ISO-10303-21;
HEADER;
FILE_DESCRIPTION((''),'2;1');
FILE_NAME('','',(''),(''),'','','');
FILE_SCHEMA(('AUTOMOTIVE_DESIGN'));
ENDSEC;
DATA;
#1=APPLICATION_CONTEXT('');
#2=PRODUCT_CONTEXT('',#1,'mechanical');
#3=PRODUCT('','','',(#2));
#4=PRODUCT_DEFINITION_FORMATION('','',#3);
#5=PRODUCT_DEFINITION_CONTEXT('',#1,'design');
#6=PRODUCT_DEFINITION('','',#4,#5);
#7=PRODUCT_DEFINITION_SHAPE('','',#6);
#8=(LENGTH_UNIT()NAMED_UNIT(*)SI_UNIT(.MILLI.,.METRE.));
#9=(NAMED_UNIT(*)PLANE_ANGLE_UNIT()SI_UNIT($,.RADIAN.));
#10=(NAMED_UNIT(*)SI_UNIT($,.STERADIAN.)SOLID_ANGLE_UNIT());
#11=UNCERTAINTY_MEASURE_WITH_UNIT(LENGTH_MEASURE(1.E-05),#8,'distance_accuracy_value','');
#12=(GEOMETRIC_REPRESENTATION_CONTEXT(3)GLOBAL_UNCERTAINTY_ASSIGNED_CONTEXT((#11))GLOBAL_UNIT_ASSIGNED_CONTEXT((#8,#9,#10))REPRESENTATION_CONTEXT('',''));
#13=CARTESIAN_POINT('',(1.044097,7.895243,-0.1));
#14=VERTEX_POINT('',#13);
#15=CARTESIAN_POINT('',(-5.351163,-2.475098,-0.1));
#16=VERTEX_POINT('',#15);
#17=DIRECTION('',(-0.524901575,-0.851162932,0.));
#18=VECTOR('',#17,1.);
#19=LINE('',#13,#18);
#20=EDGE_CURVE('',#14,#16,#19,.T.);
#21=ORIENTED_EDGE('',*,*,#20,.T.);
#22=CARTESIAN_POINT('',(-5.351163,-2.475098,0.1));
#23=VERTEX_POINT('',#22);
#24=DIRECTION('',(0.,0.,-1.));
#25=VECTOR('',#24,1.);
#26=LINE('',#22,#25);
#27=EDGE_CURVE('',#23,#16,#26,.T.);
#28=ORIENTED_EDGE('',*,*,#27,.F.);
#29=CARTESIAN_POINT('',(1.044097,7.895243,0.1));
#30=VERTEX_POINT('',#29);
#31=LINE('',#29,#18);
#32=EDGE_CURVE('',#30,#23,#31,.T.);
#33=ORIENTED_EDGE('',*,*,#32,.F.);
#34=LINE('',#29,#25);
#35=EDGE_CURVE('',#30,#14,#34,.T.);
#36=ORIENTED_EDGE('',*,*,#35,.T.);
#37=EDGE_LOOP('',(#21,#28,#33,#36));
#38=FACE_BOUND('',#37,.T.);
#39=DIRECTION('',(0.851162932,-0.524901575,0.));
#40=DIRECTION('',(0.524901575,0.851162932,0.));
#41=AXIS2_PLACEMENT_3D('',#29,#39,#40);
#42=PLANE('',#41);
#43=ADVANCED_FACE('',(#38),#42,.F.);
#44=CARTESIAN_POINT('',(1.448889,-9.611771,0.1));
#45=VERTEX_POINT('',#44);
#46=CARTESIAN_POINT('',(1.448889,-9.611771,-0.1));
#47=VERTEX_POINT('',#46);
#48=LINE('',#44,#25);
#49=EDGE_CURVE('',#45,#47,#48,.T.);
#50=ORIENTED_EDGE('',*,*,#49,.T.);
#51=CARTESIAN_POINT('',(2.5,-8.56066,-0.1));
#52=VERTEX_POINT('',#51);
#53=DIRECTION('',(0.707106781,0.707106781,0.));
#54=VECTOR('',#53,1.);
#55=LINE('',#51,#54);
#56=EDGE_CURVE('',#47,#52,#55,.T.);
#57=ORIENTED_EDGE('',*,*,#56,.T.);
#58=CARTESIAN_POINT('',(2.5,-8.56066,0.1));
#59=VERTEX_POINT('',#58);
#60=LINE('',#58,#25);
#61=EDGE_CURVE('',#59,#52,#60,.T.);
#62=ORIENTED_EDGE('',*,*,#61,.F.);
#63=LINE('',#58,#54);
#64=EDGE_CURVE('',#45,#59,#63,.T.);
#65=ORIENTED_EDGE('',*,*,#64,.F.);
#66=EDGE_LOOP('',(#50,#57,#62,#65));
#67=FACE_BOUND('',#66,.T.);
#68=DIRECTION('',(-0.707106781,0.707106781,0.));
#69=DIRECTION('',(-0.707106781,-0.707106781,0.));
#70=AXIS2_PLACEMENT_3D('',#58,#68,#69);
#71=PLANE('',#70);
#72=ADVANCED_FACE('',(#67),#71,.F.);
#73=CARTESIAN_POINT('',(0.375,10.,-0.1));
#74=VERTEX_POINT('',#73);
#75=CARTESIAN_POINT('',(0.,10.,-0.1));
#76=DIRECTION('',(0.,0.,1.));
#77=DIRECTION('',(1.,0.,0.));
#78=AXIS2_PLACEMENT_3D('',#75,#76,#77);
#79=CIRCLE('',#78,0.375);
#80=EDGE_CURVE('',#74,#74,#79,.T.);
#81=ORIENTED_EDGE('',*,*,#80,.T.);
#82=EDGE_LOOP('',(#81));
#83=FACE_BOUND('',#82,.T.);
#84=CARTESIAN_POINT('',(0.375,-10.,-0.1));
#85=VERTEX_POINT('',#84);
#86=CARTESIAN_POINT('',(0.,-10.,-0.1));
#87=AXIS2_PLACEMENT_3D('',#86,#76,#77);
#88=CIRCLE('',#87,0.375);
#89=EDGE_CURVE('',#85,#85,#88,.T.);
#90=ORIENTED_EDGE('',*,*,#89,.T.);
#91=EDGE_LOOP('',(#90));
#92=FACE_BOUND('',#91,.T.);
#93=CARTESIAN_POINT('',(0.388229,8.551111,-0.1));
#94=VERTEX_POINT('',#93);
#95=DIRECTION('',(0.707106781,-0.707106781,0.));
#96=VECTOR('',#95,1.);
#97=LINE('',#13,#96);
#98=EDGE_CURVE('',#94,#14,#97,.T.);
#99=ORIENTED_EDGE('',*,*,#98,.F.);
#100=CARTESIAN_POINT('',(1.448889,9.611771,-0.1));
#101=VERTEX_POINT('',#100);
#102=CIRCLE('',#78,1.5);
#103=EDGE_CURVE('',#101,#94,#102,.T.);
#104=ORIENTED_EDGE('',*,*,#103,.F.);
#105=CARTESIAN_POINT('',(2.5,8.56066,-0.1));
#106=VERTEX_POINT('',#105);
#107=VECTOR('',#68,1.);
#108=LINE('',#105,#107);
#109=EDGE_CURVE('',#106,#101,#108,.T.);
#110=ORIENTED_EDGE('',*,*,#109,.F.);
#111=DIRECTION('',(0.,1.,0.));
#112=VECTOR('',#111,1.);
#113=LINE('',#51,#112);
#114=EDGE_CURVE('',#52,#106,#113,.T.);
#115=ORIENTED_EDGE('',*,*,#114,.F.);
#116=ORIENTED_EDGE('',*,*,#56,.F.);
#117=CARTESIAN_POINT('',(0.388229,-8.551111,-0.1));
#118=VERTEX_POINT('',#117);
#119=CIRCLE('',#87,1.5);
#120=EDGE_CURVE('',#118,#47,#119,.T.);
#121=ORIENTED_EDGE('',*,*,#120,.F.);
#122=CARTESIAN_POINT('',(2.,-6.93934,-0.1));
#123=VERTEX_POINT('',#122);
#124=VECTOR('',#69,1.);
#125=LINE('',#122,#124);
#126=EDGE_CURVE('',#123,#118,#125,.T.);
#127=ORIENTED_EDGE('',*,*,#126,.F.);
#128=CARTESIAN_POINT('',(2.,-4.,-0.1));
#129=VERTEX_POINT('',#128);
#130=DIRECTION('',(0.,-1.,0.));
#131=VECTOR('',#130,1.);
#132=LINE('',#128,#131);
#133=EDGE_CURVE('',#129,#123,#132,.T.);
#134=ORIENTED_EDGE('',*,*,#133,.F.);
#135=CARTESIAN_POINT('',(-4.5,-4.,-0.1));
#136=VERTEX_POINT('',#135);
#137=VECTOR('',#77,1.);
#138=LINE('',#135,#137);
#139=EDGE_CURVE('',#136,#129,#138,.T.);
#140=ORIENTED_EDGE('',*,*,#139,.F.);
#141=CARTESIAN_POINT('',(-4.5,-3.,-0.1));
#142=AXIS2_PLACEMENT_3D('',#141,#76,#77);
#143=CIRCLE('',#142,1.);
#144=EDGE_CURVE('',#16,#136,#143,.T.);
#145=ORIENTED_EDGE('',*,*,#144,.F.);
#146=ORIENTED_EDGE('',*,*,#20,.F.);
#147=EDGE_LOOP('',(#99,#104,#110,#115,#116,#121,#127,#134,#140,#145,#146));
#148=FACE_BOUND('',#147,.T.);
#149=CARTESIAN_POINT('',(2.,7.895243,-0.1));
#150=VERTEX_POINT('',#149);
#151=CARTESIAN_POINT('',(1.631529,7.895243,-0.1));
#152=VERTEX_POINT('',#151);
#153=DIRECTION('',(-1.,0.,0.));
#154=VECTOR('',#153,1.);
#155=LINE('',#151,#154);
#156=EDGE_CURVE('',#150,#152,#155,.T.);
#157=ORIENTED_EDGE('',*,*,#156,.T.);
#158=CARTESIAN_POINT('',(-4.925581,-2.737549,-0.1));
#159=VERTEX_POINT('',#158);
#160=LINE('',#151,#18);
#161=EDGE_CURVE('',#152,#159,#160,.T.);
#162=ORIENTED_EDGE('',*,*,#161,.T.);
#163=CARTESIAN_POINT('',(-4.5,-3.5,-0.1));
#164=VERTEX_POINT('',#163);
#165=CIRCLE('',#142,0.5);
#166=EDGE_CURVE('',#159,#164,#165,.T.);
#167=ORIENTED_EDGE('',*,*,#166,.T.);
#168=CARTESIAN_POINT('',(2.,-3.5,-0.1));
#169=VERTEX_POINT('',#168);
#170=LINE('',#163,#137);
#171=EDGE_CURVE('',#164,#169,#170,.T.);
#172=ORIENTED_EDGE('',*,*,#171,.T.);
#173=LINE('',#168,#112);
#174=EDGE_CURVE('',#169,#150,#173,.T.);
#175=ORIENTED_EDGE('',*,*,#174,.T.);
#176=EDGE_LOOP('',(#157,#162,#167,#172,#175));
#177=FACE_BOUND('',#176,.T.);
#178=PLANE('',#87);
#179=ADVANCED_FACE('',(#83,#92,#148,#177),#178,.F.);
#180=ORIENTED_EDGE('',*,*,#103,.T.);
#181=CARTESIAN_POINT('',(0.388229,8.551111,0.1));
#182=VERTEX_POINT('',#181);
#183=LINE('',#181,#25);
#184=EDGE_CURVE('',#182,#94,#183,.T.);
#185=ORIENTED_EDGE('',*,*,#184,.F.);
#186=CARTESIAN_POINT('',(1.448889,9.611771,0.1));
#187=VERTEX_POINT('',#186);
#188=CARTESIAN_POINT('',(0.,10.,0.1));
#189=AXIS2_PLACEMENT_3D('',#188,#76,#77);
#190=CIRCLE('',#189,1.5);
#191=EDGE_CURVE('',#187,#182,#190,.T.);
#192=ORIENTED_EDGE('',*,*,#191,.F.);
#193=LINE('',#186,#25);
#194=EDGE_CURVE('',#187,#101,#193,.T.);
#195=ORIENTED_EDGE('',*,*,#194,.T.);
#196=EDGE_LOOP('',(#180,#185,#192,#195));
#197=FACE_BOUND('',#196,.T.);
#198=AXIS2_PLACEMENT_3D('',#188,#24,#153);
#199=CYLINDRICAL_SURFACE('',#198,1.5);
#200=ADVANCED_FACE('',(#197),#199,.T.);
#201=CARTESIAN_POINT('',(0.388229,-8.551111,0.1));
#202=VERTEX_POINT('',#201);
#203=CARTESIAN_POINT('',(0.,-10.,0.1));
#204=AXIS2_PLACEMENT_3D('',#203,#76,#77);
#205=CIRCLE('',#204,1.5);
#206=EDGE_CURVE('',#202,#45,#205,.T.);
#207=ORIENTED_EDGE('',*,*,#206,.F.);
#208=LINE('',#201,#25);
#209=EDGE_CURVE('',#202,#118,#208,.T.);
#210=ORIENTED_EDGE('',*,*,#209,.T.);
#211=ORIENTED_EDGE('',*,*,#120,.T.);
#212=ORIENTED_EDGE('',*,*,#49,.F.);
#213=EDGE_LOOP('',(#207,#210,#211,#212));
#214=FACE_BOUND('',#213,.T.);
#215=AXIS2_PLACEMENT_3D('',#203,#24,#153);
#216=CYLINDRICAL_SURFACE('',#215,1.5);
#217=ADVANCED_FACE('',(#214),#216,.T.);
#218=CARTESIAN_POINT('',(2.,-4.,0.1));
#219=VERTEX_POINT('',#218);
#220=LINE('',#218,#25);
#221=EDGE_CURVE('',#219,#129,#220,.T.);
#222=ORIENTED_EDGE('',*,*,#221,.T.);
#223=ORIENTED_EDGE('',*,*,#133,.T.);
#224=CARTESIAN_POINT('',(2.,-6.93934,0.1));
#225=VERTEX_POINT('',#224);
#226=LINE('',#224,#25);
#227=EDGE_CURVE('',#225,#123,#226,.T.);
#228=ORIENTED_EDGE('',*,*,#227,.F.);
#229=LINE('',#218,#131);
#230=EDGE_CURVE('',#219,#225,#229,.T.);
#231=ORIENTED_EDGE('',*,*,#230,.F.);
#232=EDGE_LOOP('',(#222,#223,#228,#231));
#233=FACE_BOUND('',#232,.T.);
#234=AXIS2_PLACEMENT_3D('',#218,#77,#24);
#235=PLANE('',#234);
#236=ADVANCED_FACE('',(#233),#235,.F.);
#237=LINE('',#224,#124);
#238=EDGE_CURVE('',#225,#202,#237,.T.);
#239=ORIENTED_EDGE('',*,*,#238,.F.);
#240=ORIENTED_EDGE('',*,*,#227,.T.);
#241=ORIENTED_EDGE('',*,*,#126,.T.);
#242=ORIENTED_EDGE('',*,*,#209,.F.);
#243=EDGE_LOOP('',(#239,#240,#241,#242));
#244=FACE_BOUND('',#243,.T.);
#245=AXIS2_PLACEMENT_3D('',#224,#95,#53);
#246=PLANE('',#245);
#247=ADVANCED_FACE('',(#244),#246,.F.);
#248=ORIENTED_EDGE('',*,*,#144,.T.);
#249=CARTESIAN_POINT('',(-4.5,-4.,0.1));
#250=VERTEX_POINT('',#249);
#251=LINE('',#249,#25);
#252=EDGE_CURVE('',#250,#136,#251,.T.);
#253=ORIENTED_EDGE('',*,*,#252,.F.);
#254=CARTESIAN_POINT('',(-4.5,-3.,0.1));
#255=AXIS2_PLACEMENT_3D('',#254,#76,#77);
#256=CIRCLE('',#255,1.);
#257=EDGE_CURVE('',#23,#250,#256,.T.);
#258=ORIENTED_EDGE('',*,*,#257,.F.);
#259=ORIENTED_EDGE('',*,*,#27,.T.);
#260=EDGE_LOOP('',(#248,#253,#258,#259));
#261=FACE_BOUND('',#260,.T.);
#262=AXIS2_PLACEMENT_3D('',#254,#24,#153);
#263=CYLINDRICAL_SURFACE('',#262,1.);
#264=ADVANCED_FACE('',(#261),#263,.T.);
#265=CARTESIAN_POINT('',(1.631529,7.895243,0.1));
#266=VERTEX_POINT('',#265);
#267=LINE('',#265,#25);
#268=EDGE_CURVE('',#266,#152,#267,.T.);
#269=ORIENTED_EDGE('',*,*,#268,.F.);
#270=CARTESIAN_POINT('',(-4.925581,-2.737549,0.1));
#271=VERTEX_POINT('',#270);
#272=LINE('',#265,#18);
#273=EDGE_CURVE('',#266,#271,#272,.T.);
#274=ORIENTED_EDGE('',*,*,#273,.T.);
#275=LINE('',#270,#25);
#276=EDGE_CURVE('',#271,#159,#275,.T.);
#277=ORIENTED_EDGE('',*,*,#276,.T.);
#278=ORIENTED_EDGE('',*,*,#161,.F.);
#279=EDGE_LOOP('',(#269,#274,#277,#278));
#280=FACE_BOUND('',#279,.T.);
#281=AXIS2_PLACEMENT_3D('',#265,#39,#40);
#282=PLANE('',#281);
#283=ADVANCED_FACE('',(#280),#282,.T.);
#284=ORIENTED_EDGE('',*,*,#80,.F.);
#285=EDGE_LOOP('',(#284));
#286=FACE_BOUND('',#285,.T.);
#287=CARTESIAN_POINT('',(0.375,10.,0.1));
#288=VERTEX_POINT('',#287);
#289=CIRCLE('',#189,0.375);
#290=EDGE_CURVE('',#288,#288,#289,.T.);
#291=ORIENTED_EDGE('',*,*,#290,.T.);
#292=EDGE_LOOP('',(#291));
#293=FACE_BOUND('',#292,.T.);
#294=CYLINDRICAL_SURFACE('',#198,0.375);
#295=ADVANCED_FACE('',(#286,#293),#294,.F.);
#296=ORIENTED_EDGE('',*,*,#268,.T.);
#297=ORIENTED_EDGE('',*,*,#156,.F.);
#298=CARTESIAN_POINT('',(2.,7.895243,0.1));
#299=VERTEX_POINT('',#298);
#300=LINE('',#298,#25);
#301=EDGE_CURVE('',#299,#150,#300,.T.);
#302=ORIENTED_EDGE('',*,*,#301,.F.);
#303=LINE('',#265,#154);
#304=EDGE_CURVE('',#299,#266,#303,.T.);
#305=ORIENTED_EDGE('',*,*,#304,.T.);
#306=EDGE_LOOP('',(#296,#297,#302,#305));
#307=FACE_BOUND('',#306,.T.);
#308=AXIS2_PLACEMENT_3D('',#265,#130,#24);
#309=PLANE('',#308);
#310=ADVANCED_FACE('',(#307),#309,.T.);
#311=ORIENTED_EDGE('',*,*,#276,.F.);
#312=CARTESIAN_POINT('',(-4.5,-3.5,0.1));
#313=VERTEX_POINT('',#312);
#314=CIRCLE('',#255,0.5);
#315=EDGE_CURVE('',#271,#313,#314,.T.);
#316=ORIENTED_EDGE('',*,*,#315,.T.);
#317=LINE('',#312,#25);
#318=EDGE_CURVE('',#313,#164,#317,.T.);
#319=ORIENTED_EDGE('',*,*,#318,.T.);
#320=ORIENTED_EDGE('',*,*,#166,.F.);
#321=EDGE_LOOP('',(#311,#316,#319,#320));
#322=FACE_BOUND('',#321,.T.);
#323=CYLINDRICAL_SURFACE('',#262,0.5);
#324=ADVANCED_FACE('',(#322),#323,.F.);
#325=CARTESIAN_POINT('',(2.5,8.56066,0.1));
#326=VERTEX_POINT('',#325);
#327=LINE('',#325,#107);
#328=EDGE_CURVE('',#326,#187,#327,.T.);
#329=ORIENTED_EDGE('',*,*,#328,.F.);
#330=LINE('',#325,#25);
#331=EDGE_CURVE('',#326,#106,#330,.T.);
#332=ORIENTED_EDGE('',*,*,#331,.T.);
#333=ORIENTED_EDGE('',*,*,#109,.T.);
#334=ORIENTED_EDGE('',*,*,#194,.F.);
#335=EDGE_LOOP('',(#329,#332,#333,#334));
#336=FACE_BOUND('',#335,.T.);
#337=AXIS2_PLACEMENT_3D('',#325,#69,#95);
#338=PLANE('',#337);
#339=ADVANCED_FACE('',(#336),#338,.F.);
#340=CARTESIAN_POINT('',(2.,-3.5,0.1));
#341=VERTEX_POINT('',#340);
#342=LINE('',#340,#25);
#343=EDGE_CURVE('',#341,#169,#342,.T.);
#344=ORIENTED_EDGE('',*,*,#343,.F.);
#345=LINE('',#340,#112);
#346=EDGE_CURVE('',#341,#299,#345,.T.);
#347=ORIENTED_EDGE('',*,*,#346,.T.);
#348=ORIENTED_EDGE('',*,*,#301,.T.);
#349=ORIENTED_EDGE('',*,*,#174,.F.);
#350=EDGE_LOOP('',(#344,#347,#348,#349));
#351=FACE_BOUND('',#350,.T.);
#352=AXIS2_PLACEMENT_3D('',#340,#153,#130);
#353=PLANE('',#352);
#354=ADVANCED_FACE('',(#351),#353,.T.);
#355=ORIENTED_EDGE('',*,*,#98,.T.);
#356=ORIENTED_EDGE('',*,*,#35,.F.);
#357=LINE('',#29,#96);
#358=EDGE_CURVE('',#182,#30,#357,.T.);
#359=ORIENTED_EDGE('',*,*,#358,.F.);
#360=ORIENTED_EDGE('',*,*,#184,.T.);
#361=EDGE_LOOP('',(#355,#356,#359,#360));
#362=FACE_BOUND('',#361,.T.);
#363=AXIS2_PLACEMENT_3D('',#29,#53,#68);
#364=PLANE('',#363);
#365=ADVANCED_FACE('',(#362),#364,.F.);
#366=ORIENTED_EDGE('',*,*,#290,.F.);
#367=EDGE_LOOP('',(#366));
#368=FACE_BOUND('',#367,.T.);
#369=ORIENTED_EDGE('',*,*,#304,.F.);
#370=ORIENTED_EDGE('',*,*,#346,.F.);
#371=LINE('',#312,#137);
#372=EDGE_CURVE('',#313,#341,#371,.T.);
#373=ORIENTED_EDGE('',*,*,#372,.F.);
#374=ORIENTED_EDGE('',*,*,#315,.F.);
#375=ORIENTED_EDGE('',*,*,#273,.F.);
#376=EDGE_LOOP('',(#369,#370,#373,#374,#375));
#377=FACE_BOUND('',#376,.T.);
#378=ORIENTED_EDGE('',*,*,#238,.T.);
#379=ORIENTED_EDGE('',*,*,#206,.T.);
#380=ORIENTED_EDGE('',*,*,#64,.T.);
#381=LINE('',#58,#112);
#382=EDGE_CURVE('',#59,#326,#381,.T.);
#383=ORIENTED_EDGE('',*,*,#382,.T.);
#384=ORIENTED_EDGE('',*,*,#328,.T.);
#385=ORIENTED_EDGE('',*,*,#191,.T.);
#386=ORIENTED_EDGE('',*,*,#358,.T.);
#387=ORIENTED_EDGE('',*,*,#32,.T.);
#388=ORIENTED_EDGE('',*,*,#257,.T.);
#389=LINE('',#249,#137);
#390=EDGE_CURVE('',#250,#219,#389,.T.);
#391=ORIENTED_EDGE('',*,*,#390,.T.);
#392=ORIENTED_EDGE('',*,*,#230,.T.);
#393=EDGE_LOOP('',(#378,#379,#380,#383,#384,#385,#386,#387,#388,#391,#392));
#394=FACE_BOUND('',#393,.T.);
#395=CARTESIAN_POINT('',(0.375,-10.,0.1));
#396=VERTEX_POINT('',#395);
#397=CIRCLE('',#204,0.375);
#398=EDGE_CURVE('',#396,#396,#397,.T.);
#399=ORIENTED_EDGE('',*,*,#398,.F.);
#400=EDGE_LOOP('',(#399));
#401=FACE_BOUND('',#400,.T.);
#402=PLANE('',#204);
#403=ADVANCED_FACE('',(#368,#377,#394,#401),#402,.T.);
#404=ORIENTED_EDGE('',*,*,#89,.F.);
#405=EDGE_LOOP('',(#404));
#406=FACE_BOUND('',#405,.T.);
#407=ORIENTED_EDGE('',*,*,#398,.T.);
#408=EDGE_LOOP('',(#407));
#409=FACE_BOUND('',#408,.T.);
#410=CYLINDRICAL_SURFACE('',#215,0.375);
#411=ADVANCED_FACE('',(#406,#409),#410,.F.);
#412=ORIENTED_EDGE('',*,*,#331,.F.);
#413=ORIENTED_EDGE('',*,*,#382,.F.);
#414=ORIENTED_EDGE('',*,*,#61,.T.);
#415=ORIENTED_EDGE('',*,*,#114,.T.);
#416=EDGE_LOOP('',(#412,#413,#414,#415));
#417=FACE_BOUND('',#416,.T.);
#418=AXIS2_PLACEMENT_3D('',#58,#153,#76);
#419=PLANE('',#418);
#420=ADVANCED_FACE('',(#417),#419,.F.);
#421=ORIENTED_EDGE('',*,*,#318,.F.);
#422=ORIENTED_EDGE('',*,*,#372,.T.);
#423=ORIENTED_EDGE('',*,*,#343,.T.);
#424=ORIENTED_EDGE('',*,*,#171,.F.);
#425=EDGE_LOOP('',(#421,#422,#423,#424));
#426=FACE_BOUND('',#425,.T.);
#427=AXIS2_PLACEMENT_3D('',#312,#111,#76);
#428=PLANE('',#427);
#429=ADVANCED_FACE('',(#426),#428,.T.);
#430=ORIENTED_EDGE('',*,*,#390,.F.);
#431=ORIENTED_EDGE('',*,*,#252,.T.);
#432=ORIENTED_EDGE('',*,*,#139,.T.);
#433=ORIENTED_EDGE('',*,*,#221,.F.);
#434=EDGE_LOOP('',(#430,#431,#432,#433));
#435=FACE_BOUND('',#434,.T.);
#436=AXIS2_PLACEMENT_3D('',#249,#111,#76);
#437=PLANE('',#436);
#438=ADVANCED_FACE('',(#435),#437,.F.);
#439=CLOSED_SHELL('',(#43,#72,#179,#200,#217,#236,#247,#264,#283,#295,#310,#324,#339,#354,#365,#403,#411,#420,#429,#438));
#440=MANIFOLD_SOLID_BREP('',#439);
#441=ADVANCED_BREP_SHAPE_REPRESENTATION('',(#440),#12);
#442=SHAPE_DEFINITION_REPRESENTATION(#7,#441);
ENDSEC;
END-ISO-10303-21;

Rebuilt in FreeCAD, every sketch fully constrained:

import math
import FreeCAD as App
import Part
import Sketcher
Q = App.Units.Quantity

doc = App.newDocument("Part")
params = doc.addObject("Spreadsheet::Sheet", "Params")
for row, (alias, value) in enumerate([
    ("sketch1_radius", "1 mm"),
    ("sketch1_radius2", "1.5 mm"),
    ("sketch1_radius3", "0.5 mm"),
    ("sketch1_diameter", "0.75 mm"),
    ("sketch1_width", "6.5 mm"),
    ("pad1_length", "0.2 mm"),
], start=1):
    params.set(f"A{row}", alias)
    params.set(f"B{row}", "=" + value)
    params.setAlias(f"B{row}", alias)

body = doc.addObject("PartDesign::Body", "Body")

sketch1 = body.newObject("Sketcher::SketchObject", "Sketch")
sketch1.AttachmentSupport = (doc.getObject("XY_Plane"), [""])
sketch1.MapMode = "FlatFace"
sketch1.addGeometry([
    Part.LineSegment(App.Vector(1.04, 7.9, 0), App.Vector(-5.35, -2.48, 0)),
    Part.ArcOfCircle(Part.Circle(App.Vector(-4.5, -3, 0), App.Vector(0, 0, 1), 1), math.radians(148), math.radians(270)),
    Part.LineSegment(App.Vector(-4.5, -4, 0), App.Vector(2, -4, 0)),
    Part.LineSegment(App.Vector(2, -4, 0), App.Vector(2, -6.94, 0)),
    Part.LineSegment(App.Vector(2, -6.94, 0), App.Vector(0.39, -8.55, 0)),
    Part.ArcOfCircle(Part.Circle(App.Vector(0, -10, 0), App.Vector(0, 0, 1), 1.5), math.radians(75), math.radians(375)),
    Part.LineSegment(App.Vector(1.45, -9.61, 0), App.Vector(2.5, -8.56, 0)),
    Part.LineSegment(App.Vector(2.5, -8.56, 0), App.Vector(2.5, 8.56, 0)),
    Part.LineSegment(App.Vector(2.5, 8.56, 0), App.Vector(1.45, 9.61, 0)),
    Part.ArcOfCircle(Part.Circle(App.Vector(0, 10, 0), App.Vector(0, 0, 1), 1.5), math.radians(-15), math.radians(285)),
    Part.LineSegment(App.Vector(0.39, 8.55, 0), App.Vector(1.04, 7.9, 0)),
    Part.Circle(App.Vector(0, -10, 0), App.Vector(0, 0, 1), 0.38),
    Part.LineSegment(App.Vector(-4.93, -2.74, 0), App.Vector(1.63, 7.9, 0)),
    Part.LineSegment(App.Vector(1.63, 7.9, 0), App.Vector(2, 7.9, 0)),
    Part.LineSegment(App.Vector(2, 7.9, 0), App.Vector(2, -3.5, 0)),
    Part.LineSegment(App.Vector(2, -3.5, 0), App.Vector(-4.5, -3.5, 0)),
    Part.ArcOfCircle(Part.Circle(App.Vector(-4.5, -3, 0), App.Vector(0, 0, 1), 0.5), math.radians(148), math.radians(270)),
    Part.Circle(App.Vector(0, 10, 0), App.Vector(0, 0, 1), 0.38),
], False)
sketch1.addConstraint([
    Sketcher.Constraint("Tangent", 0, 2, 1, 1),
    Sketcher.Constraint("Tangent", 1, 2, 2, 1),
    Sketcher.Constraint("Coincident", 2, 2, 3, 1),
    Sketcher.Constraint("Coincident", 3, 2, 4, 1),
    Sketcher.Constraint("Coincident", 4, 2, 5, 1),
    Sketcher.Constraint("Coincident", 5, 2, 6, 1),
    Sketcher.Constraint("Coincident", 6, 2, 7, 1),
    Sketcher.Constraint("Coincident", 7, 2, 8, 1),
    Sketcher.Constraint("Coincident", 8, 2, 9, 1),
    Sketcher.Constraint("Coincident", 9, 2, 10, 1),
    Sketcher.Constraint("Coincident", 10, 2, 0, 1),
    Sketcher.Constraint("Coincident", 12, 2, 13, 1),
    Sketcher.Constraint("Coincident", 13, 2, 14, 1),
    Sketcher.Constraint("Coincident", 14, 2, 15, 1),
    Sketcher.Constraint("Tangent", 15, 2, 16, 2),
    Sketcher.Constraint("Tangent", 16, 1, 12, 1),
    Sketcher.Constraint("Horizontal", 2),
    Sketcher.Constraint("Vertical", 3),
    Sketcher.Constraint("Vertical", 7),
    Sketcher.Constraint("Horizontal", 13),
    Sketcher.Constraint("Vertical", 14),
    Sketcher.Constraint("Horizontal", 15),
    Sketcher.Constraint("Coincident", 11, 3, 5, 3),
    Sketcher.Constraint("Coincident", 16, 3, 1, 3),
    Sketcher.Constraint("Coincident", 17, 3, 9, 3),
    Sketcher.Constraint("Equal", 5, 9),
    Sketcher.Constraint("Equal", 11, 17),
    Sketcher.Constraint("Symmetric", 5, 3, 9, 3, -1, 1),
    Sketcher.Constraint("Symmetric", 5, 2, 8, 2, -1),
    Sketcher.Constraint("Parallel", 4, 6),
    Sketcher.Constraint("Perpendicular", 6, 8),
    Sketcher.Constraint("Parallel", 8, 10),
    Sketcher.Constraint("Parallel", 0, 12),
    Sketcher.Constraint("Horizontal", 10, 2, 12, 2),
    Sketcher.Constraint("Vertical", 4, 2, 9, 2),
    Sketcher.Constraint("Vertical", 3, 2, 13, 2),
    Sketcher.Constraint("Equal", 6, 8),
    Sketcher.Constraint("Radius", 1, Q("1 mm")),
    Sketcher.Constraint("Radius", 5, Q("1.5 mm")),
    Sketcher.Constraint("Radius", 16, Q("0.5 mm")),
    Sketcher.Constraint("Diameter", 11, Q("0.75 mm")),
    Sketcher.Constraint("DistanceX", 2, 1, 2, 2, Q("6.5 mm")),
    Sketcher.Constraint("DistanceY", 1, 3, -1, 1, Q("3 mm")),
    Sketcher.Constraint("DistanceY", 5, 3, -1, 1, Q("10 mm")),
    Sketcher.Constraint("DistanceX", -1, 1, 2, 2, Q("2 mm")),
    Sketcher.Constraint("DistanceX", 1, 3, 7, 2, Q("7 mm")),
    Sketcher.Constraint("DistanceX", 13, 1, 13, 2, Q("0.368471 mm")),
    Sketcher.Constraint("DistanceY", 3, 2, 3, 1, Q("2.93934 mm")),
    Sketcher.Constraint("DistanceY", 7, 1, 7, 2, Q("17.12132 mm")),
])
sketch1.setExpression("Constraints[37]", "Params.sketch1_radius")
sketch1.setExpression("Constraints[38]", "Params.sketch1_radius2")
sketch1.setExpression("Constraints[39]", "Params.sketch1_radius3")
sketch1.setExpression("Constraints[40]", "Params.sketch1_diameter")
sketch1.setExpression("Constraints[41]", "Params.sketch1_width")
pad1 = body.newObject("PartDesign::Pad", "Pad")
pad1.Profile = sketch1
pad1.setExpression("Length", "Params.pad1_length")
pad1.Midplane = True

doc.recompute()
